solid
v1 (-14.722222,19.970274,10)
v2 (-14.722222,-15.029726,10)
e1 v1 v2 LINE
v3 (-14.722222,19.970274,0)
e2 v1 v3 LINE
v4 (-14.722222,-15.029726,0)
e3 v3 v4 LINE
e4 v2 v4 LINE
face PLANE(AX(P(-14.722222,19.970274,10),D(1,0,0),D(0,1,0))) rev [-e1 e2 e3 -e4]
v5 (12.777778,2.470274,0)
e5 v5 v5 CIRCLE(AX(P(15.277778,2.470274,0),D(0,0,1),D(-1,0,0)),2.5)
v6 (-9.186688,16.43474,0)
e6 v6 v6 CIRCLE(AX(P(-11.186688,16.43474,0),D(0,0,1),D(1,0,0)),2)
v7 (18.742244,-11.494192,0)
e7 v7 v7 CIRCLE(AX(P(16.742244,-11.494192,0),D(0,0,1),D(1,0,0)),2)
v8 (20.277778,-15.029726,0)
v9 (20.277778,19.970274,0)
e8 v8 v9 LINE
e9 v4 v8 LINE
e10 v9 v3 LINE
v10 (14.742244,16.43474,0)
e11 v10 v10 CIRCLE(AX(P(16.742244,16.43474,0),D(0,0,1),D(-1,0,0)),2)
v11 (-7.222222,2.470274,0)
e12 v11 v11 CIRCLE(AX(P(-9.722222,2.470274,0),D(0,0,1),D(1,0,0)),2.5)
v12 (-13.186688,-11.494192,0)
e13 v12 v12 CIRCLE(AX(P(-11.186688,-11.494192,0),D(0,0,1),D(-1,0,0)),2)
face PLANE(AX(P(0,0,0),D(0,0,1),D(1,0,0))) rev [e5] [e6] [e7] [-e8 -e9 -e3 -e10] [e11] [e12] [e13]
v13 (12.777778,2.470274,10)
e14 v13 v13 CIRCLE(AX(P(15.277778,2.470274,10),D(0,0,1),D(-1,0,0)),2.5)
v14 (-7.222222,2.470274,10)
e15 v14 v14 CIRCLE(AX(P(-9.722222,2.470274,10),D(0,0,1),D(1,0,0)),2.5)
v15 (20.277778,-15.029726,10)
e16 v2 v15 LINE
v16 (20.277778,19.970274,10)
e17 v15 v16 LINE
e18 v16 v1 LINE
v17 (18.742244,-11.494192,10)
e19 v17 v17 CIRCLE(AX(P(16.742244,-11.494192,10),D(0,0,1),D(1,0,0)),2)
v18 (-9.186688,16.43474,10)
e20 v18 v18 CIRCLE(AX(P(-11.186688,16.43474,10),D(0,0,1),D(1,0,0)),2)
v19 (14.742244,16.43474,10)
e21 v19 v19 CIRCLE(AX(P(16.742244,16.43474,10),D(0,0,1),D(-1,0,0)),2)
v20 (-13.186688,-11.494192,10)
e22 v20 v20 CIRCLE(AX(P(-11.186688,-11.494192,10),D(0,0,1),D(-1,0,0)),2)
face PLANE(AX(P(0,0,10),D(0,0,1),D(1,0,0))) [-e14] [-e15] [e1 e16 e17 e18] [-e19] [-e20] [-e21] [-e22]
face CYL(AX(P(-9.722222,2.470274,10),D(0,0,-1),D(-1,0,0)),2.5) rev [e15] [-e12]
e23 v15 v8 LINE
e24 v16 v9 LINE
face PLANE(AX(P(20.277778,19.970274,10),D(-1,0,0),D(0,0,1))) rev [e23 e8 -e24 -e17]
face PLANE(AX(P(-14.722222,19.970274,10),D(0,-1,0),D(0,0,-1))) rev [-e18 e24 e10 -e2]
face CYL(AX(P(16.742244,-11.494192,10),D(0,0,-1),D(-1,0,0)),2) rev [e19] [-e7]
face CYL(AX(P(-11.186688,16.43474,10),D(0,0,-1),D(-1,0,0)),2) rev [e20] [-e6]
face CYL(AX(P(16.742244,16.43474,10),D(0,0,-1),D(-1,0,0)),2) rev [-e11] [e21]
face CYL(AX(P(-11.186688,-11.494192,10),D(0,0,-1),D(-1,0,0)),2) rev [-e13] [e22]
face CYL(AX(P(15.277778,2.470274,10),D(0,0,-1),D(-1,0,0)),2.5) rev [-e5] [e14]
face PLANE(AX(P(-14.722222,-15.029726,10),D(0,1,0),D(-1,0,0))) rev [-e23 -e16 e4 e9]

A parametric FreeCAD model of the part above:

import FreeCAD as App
import Part
import Sketcher
Q = App.Units.Quantity


def add_polygon(sketch, points):
    """Adds a closed chain of lines whose ends are joined by coincident constraints."""
    first, n = sketch.GeometryCount, len(points)
    for a, b in zip(points, points[1:] + points[:1]):
        sketch.addGeometry(Part.LineSegment(App.Vector(*a, 0), App.Vector(*b, 0)), False)
    for i in range(n):
        sketch.addConstraint(Sketcher.Constraint("Coincident", first + i, 2, first + (i + 1) % n, 1))

doc = App.newDocument("Part")
body = doc.addObject("PartDesign::Body", "Body")

sketch1 = body.newObject("Sketcher::SketchObject", "Sketch")
sketch1.AttachmentSupport = (doc.getObject("XY_Plane"), [""])
sketch1.MapMode = "FlatFace"
add_polygon(sketch1, [(-14.722222, 19.970274), (-14.722222, -15.029726), (20.277778, -15.029726), (20.277778, 19.970274)])
sketch1.addGeometry(Part.Circle(App.Vector(-11.186688, -11.494192, 0), App.Vector(0, 0, 1), 2), False)
sketch1.addGeometry(Part.Circle(App.Vector(16.742244, -11.494192, 0), App.Vector(0, 0, 1), 2), False)
sketch1.addGeometry(Part.Circle(App.Vector(-9.722222, 2.470274, 0), App.Vector(0, 0, 1), 2.5), False)
sketch1.addGeometry(Part.Circle(App.Vector(-11.186688, 16.43474, 0), App.Vector(0, 0, 1), 2), False)
sketch1.addGeometry(Part.Circle(App.Vector(15.277778, 2.470274, 0), App.Vector(0, 0, 1), 2.5), False)
sketch1.addGeometry(Part.Circle(App.Vector(16.742244, 16.43474, 0), App.Vector(0, 0, 1), 2), False)
sketch1.addConstraint([
    Sketcher.Constraint("Vertical", 0),
    Sketcher.Constraint("Horizontal", 1),
    Sketcher.Constraint("Vertical", 2),
    Sketcher.Constraint("Horizontal", 3),
    Sketcher.Constraint("Equal", 4, 5),
    Sketcher.Constraint("Equal", 5, 7),
    Sketcher.Constraint("Equal", 6, 8),
    Sketcher.Constraint("Equal", 7, 9),
    Sketcher.Constraint("Horizontal", 4, 3, 5, 3),
    Sketcher.Constraint("Horizontal", 6, 3, 8, 3),
    Sketcher.Constraint("Horizontal", 7, 3, 9, 3),
    Sketcher.Constraint("Vertical", 4, 3, 7, 3),
    Sketcher.Constraint("Vertical", 5, 3, 9, 3),
    Sketcher.Constraint("Equal", 3, 0),
    Sketcher.Constraint("Diameter", 4, Q("4 mm")),
    Sketcher.Constraint("Diameter", 6, Q("5 mm")),
    Sketcher.Constraint("DistanceX", 1, 1, 1, 2, Q("35 mm")),
    Sketcher.Constraint("DistanceX", 6, 3, 8, 3, Q("25 mm")),
    Sketcher.Constraint("DistanceX", 0, 2, 6, 3, Q("5 mm")),
    Sketcher.Constraint("DistanceY", 0, 2, 6, 3, Q("17.5 mm")),
    Sketcher.Constraint("DistanceX", 4, 3, -1, 1, Q("11.186688 mm")),
    Sketcher.Constraint("DistanceY", -1, 1, 7, 3, Q("16.43474 mm")),
    Sketcher.Constraint("DistanceY", 4, 3, -1, 1, Q("11.494192 mm")),
    Sketcher.Constraint("DistanceX", -1, 1, 5, 3, Q("16.742244 mm")),
    Sketcher.Constraint("DistanceX", 6, 3, -1, 1, Q("9.722222 mm")),
    Sketcher.Constraint("DistanceY", -1, 1, 6, 3, Q("2.470274 mm")),
])
pad1 = body.newObject("PartDesign::Pad", "Pad")
pad1.Profile = sketch1
pad1.Length = 10

doc.recompute()
